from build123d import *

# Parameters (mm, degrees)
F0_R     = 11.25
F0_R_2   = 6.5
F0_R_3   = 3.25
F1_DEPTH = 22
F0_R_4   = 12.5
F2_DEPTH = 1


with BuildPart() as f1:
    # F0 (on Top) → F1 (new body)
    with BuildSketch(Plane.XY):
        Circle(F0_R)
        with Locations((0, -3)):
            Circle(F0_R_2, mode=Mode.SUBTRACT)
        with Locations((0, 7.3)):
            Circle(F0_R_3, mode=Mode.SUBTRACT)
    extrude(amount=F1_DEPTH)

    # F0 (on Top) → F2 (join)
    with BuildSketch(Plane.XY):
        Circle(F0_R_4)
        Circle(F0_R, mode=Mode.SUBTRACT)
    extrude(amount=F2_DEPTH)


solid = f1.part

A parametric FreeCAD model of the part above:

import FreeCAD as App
import Part
import Sketcher

doc = App.newDocument("Part")
body = doc.addObject("PartDesign::Body", "Body")

sketch1 = body.newObject("Sketcher::SketchObject", "Sketch")
sketch1.AttachmentSupport = (doc.getObject("XY_Plane"), [""])
sketch1.MapMode = "FlatFace"
sketch1.addGeometry(Part.Circle(App.Vector(0, 0, 0), App.Vector(0, 0, 1), 11.25), False)
sketch1.addGeometry(Part.Circle(App.Vector(0, -3, 0), App.Vector(0, 0, 1), 6.5), False)
sketch1.addGeometry(Part.Circle(App.Vector(0, 7.3, 0), App.Vector(0, 0, 1), 3.25), False)
sketch1.addConstraint(Sketcher.Constraint("Coincident", 0, 3, -1, 1))
sketch1.addConstraint(Sketcher.Constraint("PointOnObject", 1, 3, -2))
sketch1.addConstraint(Sketcher.Constraint("PointOnObject", 2, 3, -2))
sketch1.addConstraint(Sketcher.Constraint("Diameter", 1, 13.0))
sketch1.addConstraint(Sketcher.Constraint("Diameter", 0, 22.5))
sketch1.addConstraint(Sketcher.Constraint("Diameter", 2, 6.5))
sketch1.addConstraint(Sketcher.Constraint("DistanceY", 1, 3, -1, 1, 3.0))
sketch1.addConstraint(Sketcher.Constraint("DistanceY", -1, 1, 2, 3, 7.3))
pad1 = body.newObject("PartDesign::Pad", "Pad")
pad1.Profile = sketch1
pad1.Length = 22

sketch2 = body.newObject("Sketcher::SketchObject", "Sketch001")
sketch2.AttachmentSupport = (doc.getObject("XY_Plane"), [""])
sketch2.MapMode = "FlatFace"
sketch2.addGeometry(Part.Circle(App.Vector(0, 0, 0), App.Vector(0, 0, 1), 12.5), False)
sketch2.addGeometry(Part.Circle(App.Vector(0, 0, 0), App.Vector(0, 0, 1), 11.25), False)
sketch2.addConstraint(Sketcher.Constraint("Coincident", 0, 3, -1, 1))
sketch2.addConstraint(Sketcher.Constraint("Coincident", 1, 3, -1, 1))
sketch2.addConstraint(Sketcher.Constraint("Diameter", 0, 25.0))
sketch2.addConstraint(Sketcher.Constraint("Diameter", 1, 22.5))
pad2 = body.newObject("PartDesign::Pad", "Pad001")
pad2.Profile = sketch2
pad2.Length = 1

doc.recompute()
